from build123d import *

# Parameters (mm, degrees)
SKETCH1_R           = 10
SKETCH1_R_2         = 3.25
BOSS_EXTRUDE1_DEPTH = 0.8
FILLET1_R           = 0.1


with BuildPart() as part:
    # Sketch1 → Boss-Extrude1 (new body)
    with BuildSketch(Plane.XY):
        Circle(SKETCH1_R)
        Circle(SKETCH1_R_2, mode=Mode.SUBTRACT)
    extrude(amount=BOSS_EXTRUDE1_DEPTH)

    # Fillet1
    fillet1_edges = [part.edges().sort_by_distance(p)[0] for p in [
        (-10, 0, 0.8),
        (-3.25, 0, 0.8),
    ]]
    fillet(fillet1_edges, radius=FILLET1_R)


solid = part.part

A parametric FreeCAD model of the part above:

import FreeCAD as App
import Part
import Sketcher
from FreeCAD import Vector
Q = App.Units.Quantity


def edges_at(feature, points):
    """Names of the edges that pass closest to the given points."""
    edges = feature.Shape.Edges
    near = lambda p: min(range(len(edges)), key=lambda i: edges[i].distToShape(Part.Vertex(*p))[0])
    return sorted({f"Edge{near(p) + 1}" for p in points})

doc = App.newDocument("Part")
body = doc.addObject("PartDesign::Body", "Body")

sketch1 = body.newObject("Sketcher::SketchObject", "Sketch")
sketch1.AttachmentSupport = (doc.getObject("XY_Plane"), [""])
sketch1.MapMode = "FlatFace"
sketch1.addGeometry([
    Part.Circle(Vector(0, 0, 0), Vector(0, 0, 1), 10),
    Part.Circle(Vector(0, 0, 0), Vector(0, 0, 1), 3.2),
], False)
sketch1.addConstraint([
    Sketcher.Constraint("Coincident", 0, 3, -1, 1),
    Sketcher.Constraint("Coincident", 1, 3, -1, 1),
    Sketcher.Constraint("Diameter", 0, Q("20 mm")),
    Sketcher.Constraint("Diameter", 1, Q("6.5 mm")),
])
pad1 = body.newObject("PartDesign::Pad", "Pad")
pad1.Profile = sketch1
pad1.Length = 0.8
doc.recompute()

fillet = body.newObject("PartDesign::Fillet", "Fillet")
fillet.Base = (pad1, edges_at(pad1, [(-10, 0, 0.8), (-3.25, 0, 0.8)]))
fillet.Radius = 0.1

doc.recompute()
